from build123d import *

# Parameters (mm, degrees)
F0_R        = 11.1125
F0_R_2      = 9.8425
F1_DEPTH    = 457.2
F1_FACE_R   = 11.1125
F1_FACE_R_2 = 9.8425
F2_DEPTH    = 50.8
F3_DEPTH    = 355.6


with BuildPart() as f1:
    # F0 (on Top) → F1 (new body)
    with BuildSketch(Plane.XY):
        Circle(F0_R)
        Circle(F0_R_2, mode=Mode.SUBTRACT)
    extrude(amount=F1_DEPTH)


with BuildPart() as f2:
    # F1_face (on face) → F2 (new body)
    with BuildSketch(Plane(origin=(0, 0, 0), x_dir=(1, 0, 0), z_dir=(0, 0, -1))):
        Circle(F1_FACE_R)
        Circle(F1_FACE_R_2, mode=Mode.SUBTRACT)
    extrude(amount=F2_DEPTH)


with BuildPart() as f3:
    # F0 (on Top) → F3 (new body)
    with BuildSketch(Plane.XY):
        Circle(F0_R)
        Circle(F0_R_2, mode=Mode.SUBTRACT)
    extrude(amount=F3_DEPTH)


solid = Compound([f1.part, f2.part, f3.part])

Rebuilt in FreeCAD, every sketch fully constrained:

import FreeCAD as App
import Part
import Sketcher
Q = App.Units.Quantity

doc = App.newDocument("Part")
params = doc.addObject("Spreadsheet::Sheet", "Params")
for row, (alias, value) in enumerate([
    ("sketch1_diameter", "0.875 in"),
    ("sketch1_diameter2", "0.775 in"),
    ("pad1_length", "18 in"),
    ("sketch2_diameter", "0.875 in"),
    ("sketch2_diameter2", "0.775 in"),
    ("pad2_length", "2 in"),
    ("sketch3_diameter", "0.875 in"),
    ("sketch3_diameter2", "0.775 in"),
    ("pad3_length", "14 in"),
], start=1):
    params.set(f"A{row}", alias)
    params.set(f"B{row}", "=" + value)
    params.setAlias(f"B{row}", alias)

body = doc.addObject("PartDesign::Body", "Body")

# Sketch on XY plane
sketch1 = doc.addObject("Sketcher::SketchObject", "Sketch")
body.addObject(sketch1)
sketch1.AttachmentSupport = (doc.XY_Plane, [""])
sketch1.MapMode = "FlatFace"
sketch1.addGeometry(Part.Circle(App.Vector(0, 0, 0), App.Vector(0, 0, 1), 11), False)
sketch1.addGeometry(Part.Circle(App.Vector(0, 0, 0), App.Vector(0, 0, 1), 10), False)
sketch1.addConstraint(Sketcher.Constraint("Coincident", 0, 3, -1, 1))
sketch1.addConstraint(Sketcher.Constraint("Coincident", 1, 3, -1, 1))
sketch1.addConstraint(Sketcher.Constraint("Diameter", 0, Q("0.875 in")))
sketch1.addConstraint(Sketcher.Constraint("Diameter", 1, Q("0.775 in")))
sketch1.setExpression("Constraints[2]", "Params.sketch1_diameter")
sketch1.setExpression("Constraints[3]", "Params.sketch1_diameter2")
pad1 = doc.addObject("PartDesign::Pad", "Pad")
body.addObject(pad1)
pad1.Profile = sketch1
pad1.setExpression("Length", "Params.pad1_length")
body2 = doc.addObject("PartDesign::Body", "Body001")

# Sketch on XY plane
sketch2 = doc.addObject("Sketcher::SketchObject", "Sketch001")
body2.addObject(sketch2)
sketch2.AttachmentSupport = (doc.getObject("XY_Plane001"), [""])
sketch2.MapMode = "FlatFace"
sketch2.addGeometry(Part.Circle(App.Vector(0, 0, 0), App.Vector(0, 0, 1), 11), False)
sketch2.addGeometry(Part.Circle(App.Vector(0, 0, 0), App.Vector(0, 0, 1), 10), False)
sketch2.addConstraint(Sketcher.Constraint("Coincident", 0, 3, -1, 1))
sketch2.addConstraint(Sketcher.Constraint("Coincident", 1, 3, -1, 1))
sketch2.addConstraint(Sketcher.Constraint("Diameter", 0, Q("0.875 in")))
sketch2.addConstraint(Sketcher.Constraint("Diameter", 1, Q("0.775 in")))
sketch2.setExpression("Constraints[2]", "Params.sketch2_diameter")
sketch2.setExpression("Constraints[3]", "Params.sketch2_diameter2")
pad2 = doc.addObject("PartDesign::Pad", "Pad001")
body2.addObject(pad2)
pad2.Profile = sketch2
pad2.setExpression("Length", "Params.pad2_length")
pad2.Reversed = True
body3 = doc.addObject("PartDesign::Body", "Body002")

# Sketch on XY plane
sketch3 = doc.addObject("Sketcher::SketchObject", "Sketch002")
body3.addObject(sketch3)
sketch3.AttachmentSupport = (doc.getObject("XY_Plane002"), [""])
sketch3.MapMode = "FlatFace"
sketch3.addGeometry(Part.Circle(App.Vector(0, 0, 0), App.Vector(0, 0, 1), 11), False)
sketch3.addGeometry(Part.Circle(App.Vector(0, 0, 0), App.Vector(0, 0, 1), 10), False)
sketch3.addConstraint(Sketcher.Constraint("Coincident", 0, 3, -1, 1))
sketch3.addConstraint(Sketcher.Constraint("Coincident", 1, 3, -1, 1))
sketch3.addConstraint(Sketcher.Constraint("Diameter", 0, Q("0.875 in")))
sketch3.addConstraint(Sketcher.Constraint("Diameter", 1, Q("0.775 in")))
sketch3.setExpression("Constraints[2]", "Params.sketch3_diameter")
sketch3.setExpression("Constraints[3]", "Params.sketch3_diameter2")
pad3 = doc.addObject("PartDesign::Pad", "Pad002")
body3.addObject(pad3)
pad3.Profile = sketch3
pad3.setExpression("Length", "Params.pad3_length")

doc.recompute()
